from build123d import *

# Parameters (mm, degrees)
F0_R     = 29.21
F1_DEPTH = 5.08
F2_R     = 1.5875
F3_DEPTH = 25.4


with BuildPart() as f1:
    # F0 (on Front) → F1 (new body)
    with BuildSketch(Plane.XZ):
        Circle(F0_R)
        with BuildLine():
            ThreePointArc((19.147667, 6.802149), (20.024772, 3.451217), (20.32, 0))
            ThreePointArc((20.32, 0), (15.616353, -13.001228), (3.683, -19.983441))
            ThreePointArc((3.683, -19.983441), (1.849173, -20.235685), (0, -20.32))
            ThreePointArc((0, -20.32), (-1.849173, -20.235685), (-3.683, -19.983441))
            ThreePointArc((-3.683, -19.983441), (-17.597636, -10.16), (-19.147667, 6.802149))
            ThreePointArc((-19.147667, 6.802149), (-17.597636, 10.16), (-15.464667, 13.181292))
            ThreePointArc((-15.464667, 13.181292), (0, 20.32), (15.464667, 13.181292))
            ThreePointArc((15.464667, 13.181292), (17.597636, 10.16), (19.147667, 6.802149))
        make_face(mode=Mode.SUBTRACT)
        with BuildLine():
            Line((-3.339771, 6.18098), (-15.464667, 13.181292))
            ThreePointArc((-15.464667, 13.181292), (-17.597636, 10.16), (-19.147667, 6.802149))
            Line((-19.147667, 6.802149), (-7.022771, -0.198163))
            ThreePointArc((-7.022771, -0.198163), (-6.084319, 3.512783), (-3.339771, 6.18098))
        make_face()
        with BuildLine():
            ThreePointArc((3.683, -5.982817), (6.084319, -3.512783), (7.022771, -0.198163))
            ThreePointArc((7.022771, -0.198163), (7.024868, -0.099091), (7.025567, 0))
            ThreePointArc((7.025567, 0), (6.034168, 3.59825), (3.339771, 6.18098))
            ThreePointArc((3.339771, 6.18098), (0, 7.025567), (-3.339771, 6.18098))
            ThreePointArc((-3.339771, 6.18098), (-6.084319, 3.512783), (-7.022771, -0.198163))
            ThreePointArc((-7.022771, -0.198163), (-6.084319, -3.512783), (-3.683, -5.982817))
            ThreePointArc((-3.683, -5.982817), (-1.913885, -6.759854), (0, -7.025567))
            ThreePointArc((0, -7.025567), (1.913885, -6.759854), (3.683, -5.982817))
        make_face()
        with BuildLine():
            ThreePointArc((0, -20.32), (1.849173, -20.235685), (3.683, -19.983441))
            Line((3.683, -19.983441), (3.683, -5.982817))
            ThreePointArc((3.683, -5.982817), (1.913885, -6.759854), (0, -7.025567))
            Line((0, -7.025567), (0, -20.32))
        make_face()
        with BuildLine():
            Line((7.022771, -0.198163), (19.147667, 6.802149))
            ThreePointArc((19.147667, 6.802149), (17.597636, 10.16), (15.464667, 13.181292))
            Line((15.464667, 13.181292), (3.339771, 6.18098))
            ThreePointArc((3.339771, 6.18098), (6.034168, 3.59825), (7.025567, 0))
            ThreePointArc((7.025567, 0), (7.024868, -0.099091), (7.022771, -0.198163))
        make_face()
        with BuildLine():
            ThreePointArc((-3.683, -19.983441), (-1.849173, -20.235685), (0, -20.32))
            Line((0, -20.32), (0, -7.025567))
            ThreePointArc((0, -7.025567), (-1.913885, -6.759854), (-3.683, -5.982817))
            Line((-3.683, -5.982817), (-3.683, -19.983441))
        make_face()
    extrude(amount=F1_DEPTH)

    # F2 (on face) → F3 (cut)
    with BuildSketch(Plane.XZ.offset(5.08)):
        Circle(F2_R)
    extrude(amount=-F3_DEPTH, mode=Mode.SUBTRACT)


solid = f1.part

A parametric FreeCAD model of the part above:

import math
import FreeCAD as App
import Part
import Sketcher
Q = App.Units.Quantity

doc = App.newDocument("Part")
params = doc.addObject("Spreadsheet::Sheet", "Params")
for row, (alias, value) in enumerate([
    ("sketch1_diameter", "2.3 in"),
    ("sketch1_radius", "0.7999999 in"),
    ("pad1_length", "0.2 in"),
    ("sketch2_diameter", "0.125 in"),
    ("pocket1_length", "1 in"),
], start=1):
    params.set(f"A{row}", alias)
    params.set(f"B{row}", "=" + value)
    params.setAlias(f"B{row}", alias)

body = doc.addObject("PartDesign::Body", "Body")

sketch1 = body.newObject("Sketcher::SketchObject", "Sketch")
sketch1.AttachmentSupport = (doc.getObject("XZ_Plane"), [""])
sketch1.MapMode = "FlatFace"
sketch1.addGeometry([
    Part.Circle(App.Vector(0, 0, 0), App.Vector(0, 0, 1), 29.21),
    Part.ArcOfCircle(Part.Circle(App.Vector(0.000002, -0.000001, 0), App.Vector(0, 0, 1), 20.319998), math.radians(0.000003), math.radians(19.557428)),
    Part.ArcOfCircle(Part.Circle(App.Vector(0.000001, -0.000001, 0), App.Vector(0, 0, 1), 20.319999), math.radians(-79.557424), math.radians(0.000002)),
    Part.LineSegment(App.Vector(3.683, -19.983441, 0), App.Vector(3.683, -5.982817, 0)),
    Part.ArcOfCircle(Part.Circle(App.Vector(-0.000002, 0, 0), App.Vector(0, 0, 1), 7.025568), math.radians(-58.383692), math.radians(-1.6163)),
    Part.LineSegment(App.Vector(7.022771, -0.198163, 0), App.Vector(19.147667, 6.802149, 0)),
    Part.ArcOfCircle(Part.Circle(App.Vector(0, 0.000004, 0), App.Vector(0, 0, 1), 7.025563), math.radians(61.616285), math.radians(118.383715)),
    Part.LineSegment(App.Vector(-3.339771, 6.18098, 0), App.Vector(-15.464667, 13.181292, 0)),
    Part.ArcOfCircle(Part.Circle(App.Vector(0, 0.000001, 0), App.Vector(0, 0, 1), 20.319999), math.radians(40.442576), math.radians(139.557424)),
    Part.LineSegment(App.Vector(15.464667, 13.181292, 0), App.Vector(3.339771, 6.18098, 0)),
    Part.ArcOfCircle(Part.Circle(App.Vector(0, 0, 0), App.Vector(0, 0, 1), 20.32), math.radians(160.442576), math.radians(259.557422)),
    Part.LineSegment(App.Vector(-19.147667, 6.802149, 0), App.Vector(-7.022771, -0.198163, 0)),
    Part.ArcOfCircle(Part.Circle(App.Vector(0.000002, 0, 0), App.Vector(0, 0, 1), 7.025568), math.radians(-178.3837), math.radians(-121.616308)),
    Part.LineSegment(App.Vector(-3.683, -5.982817, 0), App.Vector(-3.683, -19.983441, 0)),
], False)
sketch1.addConstraint([
    Sketcher.Constraint("Tangent", 1, 1, 2, 2),
    Sketcher.Constraint("Coincident", 2, 1, 3, 1),
    Sketcher.Constraint("Coincident", 3, 2, 4, 1),
    Sketcher.Constraint("Coincident", 4, 2, 5, 1),
    Sketcher.Constraint("Coincident", 5, 2, 1, 2),
    Sketcher.Constraint("Coincident", 6, 2, 7, 1),
    Sketcher.Constraint("Coincident", 7, 2, 8, 2),
    Sketcher.Constraint("Coincident", 8, 1, 9, 1),
    Sketcher.Constraint("Coincident", 9, 2, 6, 1),
    Sketcher.Constraint("Coincident", 10, 1, 11, 1),
    Sketcher.Constraint("Coincident", 11, 2, 12, 1),
    Sketcher.Constraint("Coincident", 12, 2, 13, 1),
    Sketcher.Constraint("Coincident", 13, 2, 10, 2),
    Sketcher.Constraint("Vertical", 3),
    Sketcher.Constraint("Vertical", 13),
    Sketcher.Constraint("Coincident", 0, 3, -1, 1),
    Sketcher.Constraint("Coincident", 1, 3, -1, 1),
    Sketcher.Constraint("Coincident", 4, 3, -1, 1),
    Sketcher.Constraint("Coincident", 6, 3, -1, 1),
    Sketcher.Constraint("Coincident", 8, 3, -1, 1),
    Sketcher.Constraint("Coincident", 10, 3, -1, 1),
    Sketcher.Constraint("Coincident", 12, 3, -1, 1),
    Sketcher.Constraint("Equal", 1, 2),
    Sketcher.Constraint("Equal", 2, 8),
    Sketcher.Constraint("Equal", 8, 10),
    Sketcher.Constraint("Equal", 4, 12),
    Sketcher.Constraint("PointOnObject", 1, 1, -1),
    Sketcher.Constraint("Parallel", 5, 9),
    Sketcher.Constraint("Parallel", 7, 11),
    Sketcher.Constraint("Horizontal", 7, 2, 8, 1),
    Sketcher.Constraint("Horizontal", 6, 2, 9, 2),
    Sketcher.Constraint("Horizontal", 5, 2, 10, 1),
    Sketcher.Constraint("Horizontal", 3, 2, 12, 2),
    Sketcher.Constraint("Equal", 5, 7),
    Sketcher.Constraint("Diameter", 0, Q("2.3 in")),
    Sketcher.Constraint("Radius", 1, Q("0.7999999 in")),
    Sketcher.Constraint("Angle", 5, Q("30 deg")),
    Sketcher.Constraint("DistanceX", 13, 2, 2, 1, Q("0.29 in")),
    Sketcher.Constraint("DistanceX", 8, 1, 5, 2, Q("0.145 in")),
    Sketcher.Constraint("Radius", 4, 7.025568),
    Sketcher.Constraint("Radius", 6, 7.025563),
])
sketch1.setExpression("Constraints[34]", "Params.sketch1_diameter")
sketch1.setExpression("Constraints[35]", "Params.sketch1_radius")
pad1 = body.newObject("PartDesign::Pad", "Pad")
pad1.Profile = sketch1
pad1.setExpression("Length", "Params.pad1_length")

sketch2 = body.newObject("Sketcher::SketchObject", "Sketch001")
sketch2.AttachmentSupport = (doc.getObject("XZ_Plane"), [""])
sketch2.MapMode = "FlatFace"
sketch2.AttachmentOffset = App.Placement(App.Vector(0, 0, 0.2 * 25.4), App.Rotation())
sketch2.addGeometry(Part.Circle(App.Vector(0, 0, 0), App.Vector(0, 0, 1), 1.5875), False)
sketch2.addConstraint([
    Sketcher.Constraint("Coincident", 0, 3, -1, 1),
    Sketcher.Constraint("Diameter", 0, Q("0.125 in")),
])
sketch2.setExpression("Constraints[1]", "Params.sketch2_diameter")
pocket1 = body.newObject("PartDesign::Pocket", "Pocket")
pocket1.Profile = sketch2
pocket1.setExpression("Length", "Params.pocket1_length")

doc.recompute()
